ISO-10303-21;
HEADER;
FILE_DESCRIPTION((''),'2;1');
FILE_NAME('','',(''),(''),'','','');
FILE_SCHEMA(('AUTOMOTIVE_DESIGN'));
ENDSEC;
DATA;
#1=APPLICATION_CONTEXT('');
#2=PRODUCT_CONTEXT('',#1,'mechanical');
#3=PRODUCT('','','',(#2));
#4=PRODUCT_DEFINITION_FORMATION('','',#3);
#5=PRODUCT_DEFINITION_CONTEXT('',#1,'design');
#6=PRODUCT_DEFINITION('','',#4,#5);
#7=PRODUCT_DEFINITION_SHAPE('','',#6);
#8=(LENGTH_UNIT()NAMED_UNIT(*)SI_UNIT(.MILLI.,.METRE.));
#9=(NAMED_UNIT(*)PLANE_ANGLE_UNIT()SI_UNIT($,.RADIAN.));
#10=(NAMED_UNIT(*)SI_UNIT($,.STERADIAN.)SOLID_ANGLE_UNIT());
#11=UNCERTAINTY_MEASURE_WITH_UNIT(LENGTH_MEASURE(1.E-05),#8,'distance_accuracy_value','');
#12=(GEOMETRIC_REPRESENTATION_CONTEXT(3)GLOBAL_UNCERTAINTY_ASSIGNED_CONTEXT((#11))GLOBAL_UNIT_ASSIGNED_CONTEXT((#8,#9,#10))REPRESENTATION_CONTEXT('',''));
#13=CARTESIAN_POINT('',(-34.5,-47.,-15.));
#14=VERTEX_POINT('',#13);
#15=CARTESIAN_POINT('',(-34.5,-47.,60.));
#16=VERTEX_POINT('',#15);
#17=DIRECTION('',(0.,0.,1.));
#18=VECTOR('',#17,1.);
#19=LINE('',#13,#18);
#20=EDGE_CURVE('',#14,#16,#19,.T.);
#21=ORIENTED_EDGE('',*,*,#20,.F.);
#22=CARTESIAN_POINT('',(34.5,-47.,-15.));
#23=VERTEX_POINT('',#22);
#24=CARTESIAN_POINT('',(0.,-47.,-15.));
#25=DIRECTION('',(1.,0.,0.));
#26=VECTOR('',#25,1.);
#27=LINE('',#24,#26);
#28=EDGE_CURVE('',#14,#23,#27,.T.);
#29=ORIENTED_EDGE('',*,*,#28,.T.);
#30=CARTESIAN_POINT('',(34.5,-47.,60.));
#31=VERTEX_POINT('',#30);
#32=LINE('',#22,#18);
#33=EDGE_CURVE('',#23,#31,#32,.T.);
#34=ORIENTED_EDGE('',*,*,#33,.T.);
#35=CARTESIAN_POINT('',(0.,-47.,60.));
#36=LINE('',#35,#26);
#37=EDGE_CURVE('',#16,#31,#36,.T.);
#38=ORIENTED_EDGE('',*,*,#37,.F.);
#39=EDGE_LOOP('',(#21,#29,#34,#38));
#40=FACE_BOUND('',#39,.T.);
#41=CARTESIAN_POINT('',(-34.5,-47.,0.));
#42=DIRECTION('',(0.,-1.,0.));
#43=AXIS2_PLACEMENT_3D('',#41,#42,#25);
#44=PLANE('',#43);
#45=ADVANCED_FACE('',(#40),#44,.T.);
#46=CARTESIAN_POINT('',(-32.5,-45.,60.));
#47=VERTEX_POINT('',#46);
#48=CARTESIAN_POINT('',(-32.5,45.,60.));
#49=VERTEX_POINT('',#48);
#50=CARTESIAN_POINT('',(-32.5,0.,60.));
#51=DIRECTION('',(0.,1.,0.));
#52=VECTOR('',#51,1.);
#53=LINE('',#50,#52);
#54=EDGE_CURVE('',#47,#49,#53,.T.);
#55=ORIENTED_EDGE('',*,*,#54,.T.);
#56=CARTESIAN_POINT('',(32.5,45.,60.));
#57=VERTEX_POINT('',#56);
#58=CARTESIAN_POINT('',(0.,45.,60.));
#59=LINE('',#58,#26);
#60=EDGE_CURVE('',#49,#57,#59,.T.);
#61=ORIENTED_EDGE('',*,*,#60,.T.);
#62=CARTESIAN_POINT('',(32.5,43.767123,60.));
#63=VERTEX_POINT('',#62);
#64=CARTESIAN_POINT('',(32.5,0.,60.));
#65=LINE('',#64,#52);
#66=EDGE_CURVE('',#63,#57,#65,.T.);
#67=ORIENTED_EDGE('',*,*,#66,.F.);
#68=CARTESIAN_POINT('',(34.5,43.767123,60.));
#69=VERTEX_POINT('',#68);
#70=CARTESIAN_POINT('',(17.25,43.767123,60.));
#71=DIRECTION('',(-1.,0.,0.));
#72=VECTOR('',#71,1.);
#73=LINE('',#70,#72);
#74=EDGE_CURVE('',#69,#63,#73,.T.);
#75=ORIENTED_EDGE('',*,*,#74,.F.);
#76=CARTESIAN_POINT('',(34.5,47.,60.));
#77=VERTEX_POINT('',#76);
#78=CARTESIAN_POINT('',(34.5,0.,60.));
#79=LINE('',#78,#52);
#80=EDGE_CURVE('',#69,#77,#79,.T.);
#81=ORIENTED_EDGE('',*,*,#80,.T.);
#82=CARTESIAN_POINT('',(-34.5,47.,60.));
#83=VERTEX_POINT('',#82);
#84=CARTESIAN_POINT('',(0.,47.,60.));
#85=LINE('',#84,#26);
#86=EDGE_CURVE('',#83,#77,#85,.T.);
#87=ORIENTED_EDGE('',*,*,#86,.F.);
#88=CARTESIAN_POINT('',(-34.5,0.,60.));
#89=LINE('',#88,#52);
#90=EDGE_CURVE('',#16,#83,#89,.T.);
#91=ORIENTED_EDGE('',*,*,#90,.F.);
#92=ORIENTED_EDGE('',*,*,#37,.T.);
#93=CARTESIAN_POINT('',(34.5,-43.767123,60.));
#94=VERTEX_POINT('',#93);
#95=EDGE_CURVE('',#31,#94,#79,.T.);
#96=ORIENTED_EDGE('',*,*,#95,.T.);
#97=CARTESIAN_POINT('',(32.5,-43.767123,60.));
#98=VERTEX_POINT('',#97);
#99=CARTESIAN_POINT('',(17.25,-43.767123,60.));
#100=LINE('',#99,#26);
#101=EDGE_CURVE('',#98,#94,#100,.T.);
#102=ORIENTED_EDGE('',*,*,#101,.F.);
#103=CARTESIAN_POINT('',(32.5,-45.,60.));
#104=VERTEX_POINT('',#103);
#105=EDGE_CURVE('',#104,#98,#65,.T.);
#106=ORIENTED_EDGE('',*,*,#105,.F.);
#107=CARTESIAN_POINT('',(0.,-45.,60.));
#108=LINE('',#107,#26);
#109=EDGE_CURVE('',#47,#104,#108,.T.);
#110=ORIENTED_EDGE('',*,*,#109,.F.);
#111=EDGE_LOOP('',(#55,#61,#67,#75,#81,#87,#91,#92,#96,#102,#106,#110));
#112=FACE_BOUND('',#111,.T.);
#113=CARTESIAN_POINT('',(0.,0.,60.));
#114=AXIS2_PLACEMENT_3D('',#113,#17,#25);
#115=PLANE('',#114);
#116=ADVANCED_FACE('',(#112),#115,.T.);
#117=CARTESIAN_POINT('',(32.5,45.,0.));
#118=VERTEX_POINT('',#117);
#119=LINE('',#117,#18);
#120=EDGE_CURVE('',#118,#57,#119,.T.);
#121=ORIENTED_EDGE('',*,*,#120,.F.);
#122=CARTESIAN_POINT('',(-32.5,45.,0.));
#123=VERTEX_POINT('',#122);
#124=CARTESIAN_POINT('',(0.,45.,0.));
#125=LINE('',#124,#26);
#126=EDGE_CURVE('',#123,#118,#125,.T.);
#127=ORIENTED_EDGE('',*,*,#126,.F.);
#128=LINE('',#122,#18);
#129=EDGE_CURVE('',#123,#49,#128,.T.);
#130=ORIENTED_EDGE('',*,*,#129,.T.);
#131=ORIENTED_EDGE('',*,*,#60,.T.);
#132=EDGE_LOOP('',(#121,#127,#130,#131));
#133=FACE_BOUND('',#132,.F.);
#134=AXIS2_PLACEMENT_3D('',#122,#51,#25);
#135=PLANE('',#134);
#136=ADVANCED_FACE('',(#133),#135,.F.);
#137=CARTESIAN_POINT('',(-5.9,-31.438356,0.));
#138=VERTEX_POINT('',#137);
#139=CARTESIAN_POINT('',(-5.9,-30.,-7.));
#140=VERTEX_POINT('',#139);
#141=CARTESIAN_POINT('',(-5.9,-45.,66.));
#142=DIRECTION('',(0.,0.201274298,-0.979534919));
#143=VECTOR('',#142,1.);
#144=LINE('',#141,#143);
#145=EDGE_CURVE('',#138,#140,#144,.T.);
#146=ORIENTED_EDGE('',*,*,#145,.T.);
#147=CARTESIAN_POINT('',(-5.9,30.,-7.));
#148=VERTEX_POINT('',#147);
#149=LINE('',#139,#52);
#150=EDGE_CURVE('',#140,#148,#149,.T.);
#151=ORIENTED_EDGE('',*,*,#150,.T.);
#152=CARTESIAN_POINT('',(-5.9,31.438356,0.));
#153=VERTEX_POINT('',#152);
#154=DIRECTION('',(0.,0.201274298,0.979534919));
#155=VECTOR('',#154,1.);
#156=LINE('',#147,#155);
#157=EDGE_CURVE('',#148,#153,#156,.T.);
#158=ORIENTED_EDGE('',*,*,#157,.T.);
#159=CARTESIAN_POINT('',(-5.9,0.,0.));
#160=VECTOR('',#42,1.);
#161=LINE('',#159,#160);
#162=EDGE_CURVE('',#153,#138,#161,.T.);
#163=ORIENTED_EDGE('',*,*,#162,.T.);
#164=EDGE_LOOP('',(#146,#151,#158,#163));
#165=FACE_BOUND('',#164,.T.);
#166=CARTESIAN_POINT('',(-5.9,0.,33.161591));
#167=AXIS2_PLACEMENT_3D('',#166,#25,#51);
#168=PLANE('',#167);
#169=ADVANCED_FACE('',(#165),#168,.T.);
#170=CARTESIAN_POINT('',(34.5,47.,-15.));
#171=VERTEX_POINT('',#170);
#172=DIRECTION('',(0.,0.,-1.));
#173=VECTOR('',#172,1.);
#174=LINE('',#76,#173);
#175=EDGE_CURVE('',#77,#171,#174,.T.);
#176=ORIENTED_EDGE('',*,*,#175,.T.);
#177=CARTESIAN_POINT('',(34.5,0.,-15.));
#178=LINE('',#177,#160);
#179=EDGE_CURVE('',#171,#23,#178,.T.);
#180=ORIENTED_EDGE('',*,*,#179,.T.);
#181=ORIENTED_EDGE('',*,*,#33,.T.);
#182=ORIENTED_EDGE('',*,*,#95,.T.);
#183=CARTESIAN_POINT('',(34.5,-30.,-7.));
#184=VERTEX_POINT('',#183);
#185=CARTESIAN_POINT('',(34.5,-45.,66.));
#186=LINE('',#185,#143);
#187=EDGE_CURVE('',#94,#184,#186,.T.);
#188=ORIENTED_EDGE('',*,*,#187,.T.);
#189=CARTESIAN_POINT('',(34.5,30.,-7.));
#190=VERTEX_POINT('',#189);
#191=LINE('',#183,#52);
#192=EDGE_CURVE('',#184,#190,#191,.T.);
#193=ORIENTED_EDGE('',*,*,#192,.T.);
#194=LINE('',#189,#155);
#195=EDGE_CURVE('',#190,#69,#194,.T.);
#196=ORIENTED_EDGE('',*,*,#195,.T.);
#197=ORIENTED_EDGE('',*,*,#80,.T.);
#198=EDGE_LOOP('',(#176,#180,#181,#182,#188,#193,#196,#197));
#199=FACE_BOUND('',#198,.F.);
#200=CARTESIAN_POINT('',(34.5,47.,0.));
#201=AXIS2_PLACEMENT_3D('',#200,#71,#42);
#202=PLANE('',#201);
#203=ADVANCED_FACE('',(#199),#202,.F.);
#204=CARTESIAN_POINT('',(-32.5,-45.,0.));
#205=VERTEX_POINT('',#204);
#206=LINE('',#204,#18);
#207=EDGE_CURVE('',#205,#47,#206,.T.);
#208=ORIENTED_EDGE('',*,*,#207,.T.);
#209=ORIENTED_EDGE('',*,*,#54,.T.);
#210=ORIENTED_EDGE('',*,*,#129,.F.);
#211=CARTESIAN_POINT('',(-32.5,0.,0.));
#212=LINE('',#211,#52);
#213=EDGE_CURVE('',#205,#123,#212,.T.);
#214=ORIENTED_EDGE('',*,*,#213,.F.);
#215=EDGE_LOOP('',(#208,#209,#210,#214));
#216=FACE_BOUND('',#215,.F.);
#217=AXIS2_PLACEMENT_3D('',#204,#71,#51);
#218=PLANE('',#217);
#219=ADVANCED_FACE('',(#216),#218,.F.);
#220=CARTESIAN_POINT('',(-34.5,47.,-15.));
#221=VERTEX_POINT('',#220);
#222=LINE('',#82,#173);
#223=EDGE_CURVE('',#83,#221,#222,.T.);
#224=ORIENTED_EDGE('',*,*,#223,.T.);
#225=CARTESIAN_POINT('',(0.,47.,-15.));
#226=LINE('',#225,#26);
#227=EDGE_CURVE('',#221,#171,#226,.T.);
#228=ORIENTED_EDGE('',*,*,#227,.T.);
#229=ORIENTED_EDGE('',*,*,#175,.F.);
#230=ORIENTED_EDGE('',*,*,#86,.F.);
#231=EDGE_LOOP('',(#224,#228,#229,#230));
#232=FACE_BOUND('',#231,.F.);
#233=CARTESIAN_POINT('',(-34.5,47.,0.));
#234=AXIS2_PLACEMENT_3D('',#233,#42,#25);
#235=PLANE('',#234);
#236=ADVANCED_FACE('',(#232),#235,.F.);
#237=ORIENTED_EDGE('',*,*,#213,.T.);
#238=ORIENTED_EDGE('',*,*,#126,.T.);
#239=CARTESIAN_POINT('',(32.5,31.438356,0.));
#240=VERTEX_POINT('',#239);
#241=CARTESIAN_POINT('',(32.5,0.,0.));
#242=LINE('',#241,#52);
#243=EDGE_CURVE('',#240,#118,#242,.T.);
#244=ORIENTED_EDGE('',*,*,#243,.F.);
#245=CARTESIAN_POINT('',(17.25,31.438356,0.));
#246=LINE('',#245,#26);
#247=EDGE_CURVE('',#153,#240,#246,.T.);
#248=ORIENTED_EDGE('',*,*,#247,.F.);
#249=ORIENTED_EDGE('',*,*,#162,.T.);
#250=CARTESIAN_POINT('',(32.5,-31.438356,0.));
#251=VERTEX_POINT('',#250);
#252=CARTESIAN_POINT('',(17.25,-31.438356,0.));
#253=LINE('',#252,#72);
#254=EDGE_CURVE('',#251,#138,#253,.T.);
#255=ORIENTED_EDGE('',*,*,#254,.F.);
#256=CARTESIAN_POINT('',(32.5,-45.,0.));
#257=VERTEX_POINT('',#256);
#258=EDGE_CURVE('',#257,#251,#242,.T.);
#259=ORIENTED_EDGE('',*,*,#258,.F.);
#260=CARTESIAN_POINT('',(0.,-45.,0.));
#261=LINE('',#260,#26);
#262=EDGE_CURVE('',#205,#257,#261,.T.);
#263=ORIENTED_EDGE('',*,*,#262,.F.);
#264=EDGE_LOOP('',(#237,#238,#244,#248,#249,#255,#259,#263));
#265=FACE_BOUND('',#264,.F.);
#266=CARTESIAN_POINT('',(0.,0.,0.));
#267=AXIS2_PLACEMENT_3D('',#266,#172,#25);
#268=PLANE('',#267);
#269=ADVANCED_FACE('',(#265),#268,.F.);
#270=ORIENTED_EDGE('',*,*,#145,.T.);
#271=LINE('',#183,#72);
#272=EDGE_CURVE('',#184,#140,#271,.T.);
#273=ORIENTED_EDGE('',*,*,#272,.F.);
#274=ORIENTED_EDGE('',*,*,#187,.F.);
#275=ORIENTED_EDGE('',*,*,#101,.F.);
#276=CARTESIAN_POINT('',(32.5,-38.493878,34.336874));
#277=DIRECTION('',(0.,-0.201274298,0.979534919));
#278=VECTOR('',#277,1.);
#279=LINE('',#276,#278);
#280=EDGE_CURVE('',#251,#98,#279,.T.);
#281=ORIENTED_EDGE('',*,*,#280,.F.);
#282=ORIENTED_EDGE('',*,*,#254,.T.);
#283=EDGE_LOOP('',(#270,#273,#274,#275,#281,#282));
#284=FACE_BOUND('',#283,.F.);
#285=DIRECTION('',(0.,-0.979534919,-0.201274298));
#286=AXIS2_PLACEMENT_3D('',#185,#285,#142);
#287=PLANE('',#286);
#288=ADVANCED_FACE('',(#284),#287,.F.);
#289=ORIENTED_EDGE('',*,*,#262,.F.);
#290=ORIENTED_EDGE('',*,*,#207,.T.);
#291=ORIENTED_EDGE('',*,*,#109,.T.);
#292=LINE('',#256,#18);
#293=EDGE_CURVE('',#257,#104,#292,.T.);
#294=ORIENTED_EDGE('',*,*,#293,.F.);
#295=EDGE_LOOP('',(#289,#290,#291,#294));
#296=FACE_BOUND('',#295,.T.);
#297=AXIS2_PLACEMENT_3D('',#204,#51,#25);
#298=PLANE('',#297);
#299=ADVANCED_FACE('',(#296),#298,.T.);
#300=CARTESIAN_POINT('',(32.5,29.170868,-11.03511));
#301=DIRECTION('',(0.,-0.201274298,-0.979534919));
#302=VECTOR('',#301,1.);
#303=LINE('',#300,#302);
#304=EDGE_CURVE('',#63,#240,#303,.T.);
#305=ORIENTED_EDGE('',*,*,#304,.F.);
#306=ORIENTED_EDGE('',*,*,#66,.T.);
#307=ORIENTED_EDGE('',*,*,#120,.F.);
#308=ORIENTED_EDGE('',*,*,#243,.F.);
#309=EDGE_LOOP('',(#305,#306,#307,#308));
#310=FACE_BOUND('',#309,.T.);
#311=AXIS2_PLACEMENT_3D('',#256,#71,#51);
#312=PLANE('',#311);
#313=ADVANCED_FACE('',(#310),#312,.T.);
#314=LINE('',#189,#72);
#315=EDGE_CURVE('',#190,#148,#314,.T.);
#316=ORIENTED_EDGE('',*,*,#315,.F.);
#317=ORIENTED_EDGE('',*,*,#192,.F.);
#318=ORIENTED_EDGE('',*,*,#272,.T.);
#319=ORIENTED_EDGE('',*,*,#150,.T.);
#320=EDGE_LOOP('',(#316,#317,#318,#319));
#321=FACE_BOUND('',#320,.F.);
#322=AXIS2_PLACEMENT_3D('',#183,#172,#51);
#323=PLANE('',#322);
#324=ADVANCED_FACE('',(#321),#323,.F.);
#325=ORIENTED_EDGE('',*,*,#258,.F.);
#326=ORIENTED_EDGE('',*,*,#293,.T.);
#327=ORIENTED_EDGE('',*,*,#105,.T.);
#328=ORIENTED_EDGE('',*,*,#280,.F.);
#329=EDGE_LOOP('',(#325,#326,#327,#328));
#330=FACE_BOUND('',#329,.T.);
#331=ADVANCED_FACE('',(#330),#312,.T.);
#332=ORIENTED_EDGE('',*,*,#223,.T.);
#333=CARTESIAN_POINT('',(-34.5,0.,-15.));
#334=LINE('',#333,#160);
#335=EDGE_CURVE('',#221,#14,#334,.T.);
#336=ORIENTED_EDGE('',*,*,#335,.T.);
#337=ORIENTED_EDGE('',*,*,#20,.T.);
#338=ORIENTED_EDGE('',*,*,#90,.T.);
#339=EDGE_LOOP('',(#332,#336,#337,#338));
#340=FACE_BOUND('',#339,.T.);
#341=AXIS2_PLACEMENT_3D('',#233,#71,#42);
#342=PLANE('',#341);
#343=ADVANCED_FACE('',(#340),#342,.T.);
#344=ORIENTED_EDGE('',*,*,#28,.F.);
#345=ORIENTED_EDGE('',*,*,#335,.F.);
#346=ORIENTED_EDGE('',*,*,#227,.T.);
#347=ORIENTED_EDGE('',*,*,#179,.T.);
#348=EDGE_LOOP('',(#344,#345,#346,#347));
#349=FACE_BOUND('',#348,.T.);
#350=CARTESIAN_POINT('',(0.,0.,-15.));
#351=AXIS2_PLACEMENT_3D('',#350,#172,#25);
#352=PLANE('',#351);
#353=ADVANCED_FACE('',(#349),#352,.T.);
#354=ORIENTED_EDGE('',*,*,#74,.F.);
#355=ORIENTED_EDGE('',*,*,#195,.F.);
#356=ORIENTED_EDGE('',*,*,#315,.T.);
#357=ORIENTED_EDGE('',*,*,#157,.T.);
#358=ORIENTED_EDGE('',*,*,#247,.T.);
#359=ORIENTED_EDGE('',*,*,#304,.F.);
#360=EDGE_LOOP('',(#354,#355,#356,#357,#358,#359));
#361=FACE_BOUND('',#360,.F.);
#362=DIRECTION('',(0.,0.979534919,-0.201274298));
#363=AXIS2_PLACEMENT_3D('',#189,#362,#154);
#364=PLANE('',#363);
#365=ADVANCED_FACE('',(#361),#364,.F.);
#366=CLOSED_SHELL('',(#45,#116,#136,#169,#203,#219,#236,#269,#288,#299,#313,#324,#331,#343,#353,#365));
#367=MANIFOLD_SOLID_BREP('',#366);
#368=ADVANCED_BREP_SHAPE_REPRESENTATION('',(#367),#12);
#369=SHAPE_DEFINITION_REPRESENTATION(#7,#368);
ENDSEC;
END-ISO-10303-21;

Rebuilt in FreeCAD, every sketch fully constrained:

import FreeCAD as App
import Part
import Sketcher


def add_polygon(sketch, points):
    """Adds a closed chain of lines whose ends are joined by coincident constraints."""
    first, n = sketch.GeometryCount, len(points)
    for a, b in zip(points, points[1:] + points[:1]):
        sketch.addGeometry(Part.LineSegment(App.Vector(*a, 0), App.Vector(*b, 0)), False)
    for i in range(n):
        sketch.addConstraint(Sketcher.Constraint("Coincident", first + i, 2, first + (i + 1) % n, 1))

doc = App.newDocument("Part")
body = doc.addObject("PartDesign::Body", "Body")

sketch1 = body.newObject("Sketcher::SketchObject", "Sketch")
sketch1.AttachmentSupport = (doc.getObject("XY_Plane"), [""])
sketch1.MapMode = "FlatFace"
add_polygon(sketch1, [(-34.5, 47), (-34.5, -47), (34.5, -47), (34.5, 47)])
add_polygon(sketch1, [(32.5, -45), (-32.5, -45), (-32.5, 45), (32.5, 45)])
sketch1.addConstraint([
    Sketcher.Constraint("Vertical", 0),
    Sketcher.Constraint("Horizontal", 1),
    Sketcher.Constraint("Vertical", 2),
    Sketcher.Constraint("Horizontal", 3),
    Sketcher.Constraint("Horizontal", 4),
    Sketcher.Constraint("Vertical", 5),
    Sketcher.Constraint("Horizontal", 6),
    Sketcher.Constraint("Vertical", 7),
    Sketcher.Constraint("Symmetric", 0, 2, 2, 2, -1, 1),
    Sketcher.Constraint("Symmetric", 4, 2, 6, 2, -1, 1),
    Sketcher.Constraint("DistanceX", 1, 1, 1, 2, 69.0),
    Sketcher.Constraint("DistanceX", 4, 2, 4, 1, 65.0),
    Sketcher.Constraint("DistanceY", 0, 2, 0, 1, 94.0),
    Sketcher.Constraint("DistanceY", 5, 1, 5, 2, 90.0),
])
pad1 = body.newObject("PartDesign::Pad", "Pad")
pad1.Profile = sketch1
pad1.Length = 60

sketch2 = body.newObject("Sketcher::SketchObject", "Sketch001")
sketch2.AttachmentSupport = (doc.getObject("XY_Plane"), [""])
sketch2.MapMode = "FlatFace"
add_polygon(sketch2, [(-34.5, -47), (-34.5, 47), (34.5, 47), (34.5, -47)])
sketch2.addConstraint([
    Sketcher.Constraint("Vertical", 0),
    Sketcher.Constraint("Horizontal", 1),
    Sketcher.Constraint("Vertical", 2),
    Sketcher.Constraint("Horizontal", 3),
    Sketcher.Constraint("Symmetric", 0, 2, 2, 2, -1, 1),
    Sketcher.Constraint("DistanceX", 1, 1, 1, 2, 69.0),
    Sketcher.Constraint("DistanceY", 0, 1, 0, 2, 94.0),
])
pad2 = body.newObject("PartDesign::Pad", "Pad001")
pad2.Profile = sketch2
pad2.Length = 15
pad2.Reversed = True

sketch3 = body.newObject("Sketcher::SketchObject", "Sketch002")
sketch3.AttachmentSupport = (doc.getObject("YZ_Plane"), [""])
sketch3.MapMode = "FlatFace"
sketch3.AttachmentOffset = App.Placement(App.Vector(0, 0, 34.5), App.Rotation())
add_polygon(sketch3, [(-30, -7), (30, -7), (45, 66), (-45, 66)])
sketch3.addConstraint([
    Sketcher.Constraint("Horizontal", 0),
    Sketcher.Constraint("Horizontal", 2),
    Sketcher.Constraint("Equal", 1, 3),
    Sketcher.Constraint("DistanceX", 0, 1, 0, 2, 60.0),
    Sketcher.Constraint("DistanceX", 2, 2, 2, 1, 90.0),
    Sketcher.Constraint("DistanceX", -1, 1, 0, 2, 30.0),
    Sketcher.Constraint("DistanceY", 0, 2, -1, 1, 7.0),
    Sketcher.Constraint("DistanceY", -1, 1, 1, 2, 66.0),
])
pocket1 = body.newObject("PartDesign::Pocket", "Pocket")
pocket1.Profile = sketch3
pocket1.Length = 40.4

doc.recompute()
